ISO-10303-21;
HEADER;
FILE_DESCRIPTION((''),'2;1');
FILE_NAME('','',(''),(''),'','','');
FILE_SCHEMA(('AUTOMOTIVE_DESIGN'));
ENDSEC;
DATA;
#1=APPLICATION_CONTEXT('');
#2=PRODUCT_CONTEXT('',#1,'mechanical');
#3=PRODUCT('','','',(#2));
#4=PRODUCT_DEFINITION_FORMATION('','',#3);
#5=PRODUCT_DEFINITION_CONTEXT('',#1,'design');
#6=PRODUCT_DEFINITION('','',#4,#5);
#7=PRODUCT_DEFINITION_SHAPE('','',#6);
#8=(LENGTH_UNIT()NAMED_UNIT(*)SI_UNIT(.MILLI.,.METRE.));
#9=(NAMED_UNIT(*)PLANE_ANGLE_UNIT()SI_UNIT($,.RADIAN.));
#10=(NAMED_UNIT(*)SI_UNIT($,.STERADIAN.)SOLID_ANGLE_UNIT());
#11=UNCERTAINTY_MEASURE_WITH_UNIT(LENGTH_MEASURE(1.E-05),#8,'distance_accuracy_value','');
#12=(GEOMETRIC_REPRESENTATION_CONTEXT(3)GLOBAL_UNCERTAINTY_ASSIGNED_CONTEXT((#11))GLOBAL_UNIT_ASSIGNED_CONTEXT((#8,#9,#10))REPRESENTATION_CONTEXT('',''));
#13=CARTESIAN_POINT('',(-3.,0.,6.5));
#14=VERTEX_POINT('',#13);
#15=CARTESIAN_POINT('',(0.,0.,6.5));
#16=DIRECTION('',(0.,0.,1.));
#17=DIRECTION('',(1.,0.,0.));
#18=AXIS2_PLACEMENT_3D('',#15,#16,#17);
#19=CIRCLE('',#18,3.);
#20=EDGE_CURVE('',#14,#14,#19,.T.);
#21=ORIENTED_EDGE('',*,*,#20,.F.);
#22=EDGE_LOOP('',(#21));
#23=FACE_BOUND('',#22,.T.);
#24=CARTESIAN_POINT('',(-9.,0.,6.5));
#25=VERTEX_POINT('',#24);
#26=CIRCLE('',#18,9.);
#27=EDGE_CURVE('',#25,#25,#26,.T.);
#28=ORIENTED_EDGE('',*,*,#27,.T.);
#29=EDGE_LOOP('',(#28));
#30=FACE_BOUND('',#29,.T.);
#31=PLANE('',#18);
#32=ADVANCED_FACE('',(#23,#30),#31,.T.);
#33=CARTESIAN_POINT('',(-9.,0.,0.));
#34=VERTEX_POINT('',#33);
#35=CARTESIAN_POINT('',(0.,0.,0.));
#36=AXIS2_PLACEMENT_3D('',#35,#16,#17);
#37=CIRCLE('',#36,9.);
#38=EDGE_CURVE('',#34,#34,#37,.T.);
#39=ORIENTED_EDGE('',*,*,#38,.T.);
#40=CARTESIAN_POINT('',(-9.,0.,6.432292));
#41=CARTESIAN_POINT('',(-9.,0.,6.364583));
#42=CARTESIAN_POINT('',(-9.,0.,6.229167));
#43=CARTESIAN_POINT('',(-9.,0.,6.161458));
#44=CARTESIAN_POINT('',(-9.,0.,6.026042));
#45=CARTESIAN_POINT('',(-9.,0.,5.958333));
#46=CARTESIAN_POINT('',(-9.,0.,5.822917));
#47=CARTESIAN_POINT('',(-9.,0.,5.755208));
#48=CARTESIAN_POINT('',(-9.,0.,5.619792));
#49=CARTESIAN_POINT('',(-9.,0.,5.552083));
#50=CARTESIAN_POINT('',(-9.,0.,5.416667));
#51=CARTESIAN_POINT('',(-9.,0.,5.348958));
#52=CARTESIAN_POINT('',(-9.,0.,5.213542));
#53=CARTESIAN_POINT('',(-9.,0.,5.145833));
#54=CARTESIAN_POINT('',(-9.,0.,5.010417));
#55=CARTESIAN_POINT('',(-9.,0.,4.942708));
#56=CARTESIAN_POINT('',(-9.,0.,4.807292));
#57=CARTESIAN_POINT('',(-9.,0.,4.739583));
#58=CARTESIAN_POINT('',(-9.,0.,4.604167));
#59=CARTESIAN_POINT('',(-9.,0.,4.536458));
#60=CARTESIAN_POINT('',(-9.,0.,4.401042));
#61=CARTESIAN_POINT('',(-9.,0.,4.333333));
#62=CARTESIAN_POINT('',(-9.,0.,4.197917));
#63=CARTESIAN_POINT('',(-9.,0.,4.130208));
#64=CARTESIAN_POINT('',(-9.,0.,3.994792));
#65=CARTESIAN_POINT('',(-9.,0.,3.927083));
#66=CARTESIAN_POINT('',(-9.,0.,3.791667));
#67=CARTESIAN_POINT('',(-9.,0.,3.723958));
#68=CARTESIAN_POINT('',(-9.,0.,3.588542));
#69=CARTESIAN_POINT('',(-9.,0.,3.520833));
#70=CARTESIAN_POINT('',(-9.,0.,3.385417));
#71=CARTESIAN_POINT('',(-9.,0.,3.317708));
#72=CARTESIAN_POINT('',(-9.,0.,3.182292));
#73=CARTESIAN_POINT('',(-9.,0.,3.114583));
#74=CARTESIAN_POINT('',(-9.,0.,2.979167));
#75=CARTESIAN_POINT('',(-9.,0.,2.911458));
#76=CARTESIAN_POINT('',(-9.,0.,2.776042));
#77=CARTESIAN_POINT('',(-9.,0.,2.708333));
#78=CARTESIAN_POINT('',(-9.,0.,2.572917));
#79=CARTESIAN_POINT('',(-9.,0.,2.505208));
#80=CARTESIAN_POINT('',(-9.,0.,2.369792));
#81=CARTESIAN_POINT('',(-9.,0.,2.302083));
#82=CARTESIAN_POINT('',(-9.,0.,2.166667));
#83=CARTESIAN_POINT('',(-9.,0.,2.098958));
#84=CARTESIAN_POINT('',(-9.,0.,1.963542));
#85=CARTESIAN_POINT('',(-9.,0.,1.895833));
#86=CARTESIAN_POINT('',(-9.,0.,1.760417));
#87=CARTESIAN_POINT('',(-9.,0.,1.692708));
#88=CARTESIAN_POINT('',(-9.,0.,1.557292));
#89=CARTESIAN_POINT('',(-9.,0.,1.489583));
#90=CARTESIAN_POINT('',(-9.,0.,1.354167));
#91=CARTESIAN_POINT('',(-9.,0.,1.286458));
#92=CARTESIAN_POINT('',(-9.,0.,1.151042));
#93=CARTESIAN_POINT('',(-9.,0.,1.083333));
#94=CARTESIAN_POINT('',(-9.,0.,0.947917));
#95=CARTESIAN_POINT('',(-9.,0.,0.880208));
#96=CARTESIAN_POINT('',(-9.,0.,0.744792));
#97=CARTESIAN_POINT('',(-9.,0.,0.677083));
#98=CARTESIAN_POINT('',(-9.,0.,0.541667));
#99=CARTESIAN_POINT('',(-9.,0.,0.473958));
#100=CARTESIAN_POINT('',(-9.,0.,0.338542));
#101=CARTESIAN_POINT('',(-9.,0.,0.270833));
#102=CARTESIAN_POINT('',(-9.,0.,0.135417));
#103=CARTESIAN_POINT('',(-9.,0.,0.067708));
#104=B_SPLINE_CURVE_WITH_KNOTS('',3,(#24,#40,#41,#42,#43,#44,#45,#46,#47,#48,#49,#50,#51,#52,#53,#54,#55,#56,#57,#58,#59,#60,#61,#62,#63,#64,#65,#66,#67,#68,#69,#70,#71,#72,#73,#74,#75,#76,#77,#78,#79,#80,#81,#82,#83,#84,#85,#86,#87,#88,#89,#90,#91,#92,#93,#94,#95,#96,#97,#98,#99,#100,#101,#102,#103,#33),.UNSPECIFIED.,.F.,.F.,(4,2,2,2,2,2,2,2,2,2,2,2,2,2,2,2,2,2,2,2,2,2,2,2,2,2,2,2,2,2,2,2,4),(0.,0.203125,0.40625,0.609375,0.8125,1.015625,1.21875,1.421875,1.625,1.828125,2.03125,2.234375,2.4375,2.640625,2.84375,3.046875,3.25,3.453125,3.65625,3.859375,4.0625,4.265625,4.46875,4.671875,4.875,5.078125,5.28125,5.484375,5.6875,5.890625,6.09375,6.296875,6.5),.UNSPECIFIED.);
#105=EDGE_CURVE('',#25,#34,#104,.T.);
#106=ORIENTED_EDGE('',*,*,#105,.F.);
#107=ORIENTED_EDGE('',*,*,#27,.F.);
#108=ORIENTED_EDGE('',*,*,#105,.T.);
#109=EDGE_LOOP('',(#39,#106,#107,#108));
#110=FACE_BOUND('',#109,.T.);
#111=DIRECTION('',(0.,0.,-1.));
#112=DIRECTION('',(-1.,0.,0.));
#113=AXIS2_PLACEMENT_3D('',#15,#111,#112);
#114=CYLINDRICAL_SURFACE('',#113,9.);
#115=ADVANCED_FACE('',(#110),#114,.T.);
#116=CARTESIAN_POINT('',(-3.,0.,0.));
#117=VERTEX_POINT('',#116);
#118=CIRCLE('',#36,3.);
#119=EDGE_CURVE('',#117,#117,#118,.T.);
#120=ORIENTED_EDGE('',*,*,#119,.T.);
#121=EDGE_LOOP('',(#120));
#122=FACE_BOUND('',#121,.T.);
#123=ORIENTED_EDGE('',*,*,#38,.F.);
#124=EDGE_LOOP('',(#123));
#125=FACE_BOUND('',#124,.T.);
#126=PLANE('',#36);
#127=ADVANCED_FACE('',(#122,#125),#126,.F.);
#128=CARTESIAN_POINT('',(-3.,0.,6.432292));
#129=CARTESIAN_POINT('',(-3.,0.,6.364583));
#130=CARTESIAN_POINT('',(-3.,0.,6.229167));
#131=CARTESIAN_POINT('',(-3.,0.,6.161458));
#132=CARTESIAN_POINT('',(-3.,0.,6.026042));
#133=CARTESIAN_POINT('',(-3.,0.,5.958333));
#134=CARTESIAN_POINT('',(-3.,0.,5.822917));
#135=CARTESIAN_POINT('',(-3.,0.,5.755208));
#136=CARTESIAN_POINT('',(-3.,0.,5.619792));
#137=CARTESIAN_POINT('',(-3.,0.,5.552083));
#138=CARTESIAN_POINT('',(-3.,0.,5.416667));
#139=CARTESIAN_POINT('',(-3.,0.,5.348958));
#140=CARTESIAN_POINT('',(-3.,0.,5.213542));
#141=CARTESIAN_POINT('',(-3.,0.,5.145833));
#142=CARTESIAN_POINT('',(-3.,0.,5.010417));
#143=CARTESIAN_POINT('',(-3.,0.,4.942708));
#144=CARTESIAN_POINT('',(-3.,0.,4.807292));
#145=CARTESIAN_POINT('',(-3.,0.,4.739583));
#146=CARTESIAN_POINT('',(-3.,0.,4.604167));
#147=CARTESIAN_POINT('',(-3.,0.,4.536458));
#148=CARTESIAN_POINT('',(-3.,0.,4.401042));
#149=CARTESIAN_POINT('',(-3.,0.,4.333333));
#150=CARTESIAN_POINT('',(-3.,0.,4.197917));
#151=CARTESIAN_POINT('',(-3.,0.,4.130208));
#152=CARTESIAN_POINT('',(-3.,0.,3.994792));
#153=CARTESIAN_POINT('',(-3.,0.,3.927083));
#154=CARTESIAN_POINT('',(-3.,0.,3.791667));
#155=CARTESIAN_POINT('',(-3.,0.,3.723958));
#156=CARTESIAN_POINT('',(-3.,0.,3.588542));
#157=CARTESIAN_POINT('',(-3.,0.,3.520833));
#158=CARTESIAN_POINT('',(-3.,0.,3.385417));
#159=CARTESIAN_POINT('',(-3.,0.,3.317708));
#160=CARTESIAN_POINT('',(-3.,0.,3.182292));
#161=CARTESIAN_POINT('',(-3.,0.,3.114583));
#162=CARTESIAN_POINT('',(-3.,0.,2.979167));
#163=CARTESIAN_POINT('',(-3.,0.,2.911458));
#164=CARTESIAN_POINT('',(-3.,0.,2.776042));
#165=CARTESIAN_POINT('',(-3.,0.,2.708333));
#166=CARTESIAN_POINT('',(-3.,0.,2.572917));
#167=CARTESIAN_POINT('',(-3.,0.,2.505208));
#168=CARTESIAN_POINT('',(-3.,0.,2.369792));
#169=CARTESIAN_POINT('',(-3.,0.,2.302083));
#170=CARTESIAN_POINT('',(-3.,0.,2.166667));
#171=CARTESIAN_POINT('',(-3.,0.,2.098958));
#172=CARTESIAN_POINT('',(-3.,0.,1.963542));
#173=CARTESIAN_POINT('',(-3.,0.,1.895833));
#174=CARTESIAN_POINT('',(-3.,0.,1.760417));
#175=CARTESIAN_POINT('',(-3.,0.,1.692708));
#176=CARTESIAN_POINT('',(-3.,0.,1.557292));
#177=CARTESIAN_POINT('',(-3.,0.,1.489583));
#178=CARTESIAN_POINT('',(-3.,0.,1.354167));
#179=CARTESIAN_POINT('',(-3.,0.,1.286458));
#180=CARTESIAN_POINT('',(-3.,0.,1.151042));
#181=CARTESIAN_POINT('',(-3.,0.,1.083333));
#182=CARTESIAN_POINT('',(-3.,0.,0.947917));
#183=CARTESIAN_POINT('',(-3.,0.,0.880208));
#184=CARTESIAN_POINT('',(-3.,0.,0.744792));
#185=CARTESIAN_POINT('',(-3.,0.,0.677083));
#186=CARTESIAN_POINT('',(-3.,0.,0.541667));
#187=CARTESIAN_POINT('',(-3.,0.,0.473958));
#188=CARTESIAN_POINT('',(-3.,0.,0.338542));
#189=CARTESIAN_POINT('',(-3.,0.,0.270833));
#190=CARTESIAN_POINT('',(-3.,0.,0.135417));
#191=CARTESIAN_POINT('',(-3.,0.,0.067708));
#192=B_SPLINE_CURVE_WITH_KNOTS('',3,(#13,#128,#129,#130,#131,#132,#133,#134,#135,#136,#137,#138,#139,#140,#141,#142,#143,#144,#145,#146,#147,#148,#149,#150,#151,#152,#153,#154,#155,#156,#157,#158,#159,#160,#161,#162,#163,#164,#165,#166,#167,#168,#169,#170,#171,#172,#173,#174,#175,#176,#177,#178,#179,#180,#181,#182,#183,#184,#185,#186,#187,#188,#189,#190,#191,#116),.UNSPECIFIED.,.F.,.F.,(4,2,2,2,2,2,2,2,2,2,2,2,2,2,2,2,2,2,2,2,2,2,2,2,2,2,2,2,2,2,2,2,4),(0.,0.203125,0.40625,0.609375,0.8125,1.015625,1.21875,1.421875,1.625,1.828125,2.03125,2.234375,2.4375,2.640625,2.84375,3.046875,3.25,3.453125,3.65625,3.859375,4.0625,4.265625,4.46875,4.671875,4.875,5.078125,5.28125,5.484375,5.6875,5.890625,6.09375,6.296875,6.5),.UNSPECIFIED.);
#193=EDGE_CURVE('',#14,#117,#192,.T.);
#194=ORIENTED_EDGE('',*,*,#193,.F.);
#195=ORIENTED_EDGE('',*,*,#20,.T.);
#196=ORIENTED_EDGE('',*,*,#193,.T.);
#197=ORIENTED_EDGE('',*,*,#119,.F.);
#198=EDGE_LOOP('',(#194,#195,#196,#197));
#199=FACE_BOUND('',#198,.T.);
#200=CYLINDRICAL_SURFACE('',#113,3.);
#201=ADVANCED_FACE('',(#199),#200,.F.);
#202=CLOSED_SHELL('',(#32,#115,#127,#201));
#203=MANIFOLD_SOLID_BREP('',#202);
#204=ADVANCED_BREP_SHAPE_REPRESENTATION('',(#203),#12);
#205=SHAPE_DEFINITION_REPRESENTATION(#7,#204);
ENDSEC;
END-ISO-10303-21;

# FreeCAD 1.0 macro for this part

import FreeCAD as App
import Part
import Sketcher
from FreeCAD import Vector
Q = App.Units.Quantity

doc = App.newDocument("Part")
body = doc.addObject("PartDesign::Body", "Body")

# Sketch on XY plane
sketch1 = body.newObject("Sketcher::SketchObject", "Sketch")
sketch1.AttachmentSupport = (doc.getObject("XY_Plane"), [""])
sketch1.MapMode = "FlatFace"
sketch1.addGeometry([
    Part.Circle(Vector(0, 0, 0), Vector(0, 0, 1), 9),
    Part.Circle(Vector(0, 0, 0), Vector(0, 0, 1), 3),
], False)
sketch1.addConstraint([
    Sketcher.Constraint("Coincident", 0, 3, -1, 1),
    Sketcher.Constraint("Coincident", 1, 3, -1, 1),
    Sketcher.Constraint("Diameter", 0, Q("18 mm")),
    Sketcher.Constraint("Diameter", 1, Q("6 mm")),
])
pad1 = body.newObject("PartDesign::Pad", "Pad")
pad1.Profile = sketch1
pad1.Length = 6.5

doc.recompute()
